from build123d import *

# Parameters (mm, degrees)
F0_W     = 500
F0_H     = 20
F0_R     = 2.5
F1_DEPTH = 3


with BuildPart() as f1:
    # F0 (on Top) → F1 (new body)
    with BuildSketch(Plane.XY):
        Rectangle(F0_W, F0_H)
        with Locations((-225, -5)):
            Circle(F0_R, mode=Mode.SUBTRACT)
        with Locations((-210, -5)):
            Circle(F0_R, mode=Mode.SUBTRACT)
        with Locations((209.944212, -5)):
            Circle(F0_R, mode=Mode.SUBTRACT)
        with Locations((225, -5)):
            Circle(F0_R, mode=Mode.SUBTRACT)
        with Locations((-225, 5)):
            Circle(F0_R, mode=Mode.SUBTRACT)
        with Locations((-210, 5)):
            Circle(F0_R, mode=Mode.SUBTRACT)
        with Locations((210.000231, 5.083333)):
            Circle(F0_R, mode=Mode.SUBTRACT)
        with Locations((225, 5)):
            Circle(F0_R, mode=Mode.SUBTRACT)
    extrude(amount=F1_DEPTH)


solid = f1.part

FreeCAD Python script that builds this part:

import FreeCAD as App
import Part
import Sketcher

V = App.Vector
Q = App.Units.Quantity


def add_polygon(sketch, points):
    """Adds a closed chain of lines whose ends are joined by coincident constraints."""
    first, n = sketch.GeometryCount, len(points)
    for a, b in zip(points, points[1:] + points[:1]):
        sketch.addGeometry(Part.LineSegment(App.Vector(*a, 0), App.Vector(*b, 0)), False)
    for i in range(n):
        sketch.addConstraint(Sketcher.Constraint("Coincident", first + i, 2, first + (i + 1) % n, 1))

doc = App.newDocument("Part")
body = doc.addObject("PartDesign::Body", "Body")

# Sketch on XY plane
sketch1 = body.newObject("Sketcher::SketchObject", "Sketch")
sketch1.AttachmentSupport = (doc.getObject("XY_Plane"), [""])
sketch1.MapMode = "FlatFace"
add_polygon(sketch1, [(-250, 10), (-250, -10), (250, -10), (250, 10)])  # lines 0-3
sketch1.addGeometry(Part.Circle(V(-225, -5, 0), V(0, 0, 1), 2.5), False)  # 4
sketch1.addGeometry(Part.Circle(V(-210, -5, 0), V(0, 0, 1), 2.5), False)  # 5
sketch1.addGeometry(Part.Circle(V(209.944212, -5, 0), V(0, 0, 1), 2.5), False)  # 6
sketch1.addGeometry(Part.Circle(V(225, -5, 0), V(0, 0, 1), 2.5), False)  # 7
sketch1.addGeometry(Part.Circle(V(-225, 5, 0), V(0, 0, 1), 2.5), False)  # 8
sketch1.addGeometry(Part.Circle(V(-210, 5, 0), V(0, 0, 1), 2.5), False)  # 9
sketch1.addGeometry(Part.Circle(V(210.000231, 5.083333, 0), V(0, 0, 1), 2.5), False)  # 10
sketch1.addGeometry(Part.Circle(V(225, 5, 0), V(0, 0, 1), 2.5), False)  # 11
sketch1.addConstraint([
    Sketcher.Constraint("Vertical", 0),
    Sketcher.Constraint("Horizontal", 1),
    Sketcher.Constraint("Vertical", 2),
    Sketcher.Constraint("Horizontal", 3),
    Sketcher.Constraint("Equal", 4, 5),
    Sketcher.Constraint("Equal", 5, 6),
    Sketcher.Constraint("Equal", 6, 7),
    Sketcher.Constraint("Equal", 7, 8),
    Sketcher.Constraint("Equal", 8, 9),
    Sketcher.Constraint("Equal", 9, 10),
    Sketcher.Constraint("Equal", 10, 11),
    Sketcher.Constraint("Symmetric", 7, 3, 8, 3, -1, 1),
    Sketcher.Constraint("Symmetric", 4, 3, 11, 3, -1, 1),
    Sketcher.Constraint("Symmetric", 0, 2, 2, 2, -1, 1),
    Sketcher.Constraint("Symmetric", 4, 3, 7, 3, -2),
    Sketcher.Constraint("Symmetric", 5, 3, 9, 3, -1),
    Sketcher.Constraint("Horizontal", 4, 3, 5, 3),
    Sketcher.Constraint("Horizontal", 5, 3, 6, 3),
    Sketcher.Constraint("Diameter", 4, Q("5 mm")),
    Sketcher.Constraint("DistanceX", 1, 1, 1, 2, Q("500 mm")),
    Sketcher.Constraint("DistanceY", 0, 2, 0, 1, Q("20 mm")),
    Sketcher.Constraint("DistanceX", 4, 3, -1, 1, Q("225 mm")),
    Sketcher.Constraint("DistanceY", 4, 3, -1, 1, Q("5 mm")),
    Sketcher.Constraint("DistanceX", 5, 3, -1, 1, Q("210 mm")),
    Sketcher.Constraint("DistanceX", -1, 1, 6, 3, Q("209.944212 mm")),
    Sketcher.Constraint("DistanceX", -1, 1, 10, 3, Q("210.000231 mm")),
    Sketcher.Constraint("DistanceY", -1, 1, 10, 3, Q("5.083333 mm")),
])
pad1 = body.newObject("PartDesign::Pad", "Pad")
pad1.Profile = sketch1
pad1.Length = 3

doc.recompute()
